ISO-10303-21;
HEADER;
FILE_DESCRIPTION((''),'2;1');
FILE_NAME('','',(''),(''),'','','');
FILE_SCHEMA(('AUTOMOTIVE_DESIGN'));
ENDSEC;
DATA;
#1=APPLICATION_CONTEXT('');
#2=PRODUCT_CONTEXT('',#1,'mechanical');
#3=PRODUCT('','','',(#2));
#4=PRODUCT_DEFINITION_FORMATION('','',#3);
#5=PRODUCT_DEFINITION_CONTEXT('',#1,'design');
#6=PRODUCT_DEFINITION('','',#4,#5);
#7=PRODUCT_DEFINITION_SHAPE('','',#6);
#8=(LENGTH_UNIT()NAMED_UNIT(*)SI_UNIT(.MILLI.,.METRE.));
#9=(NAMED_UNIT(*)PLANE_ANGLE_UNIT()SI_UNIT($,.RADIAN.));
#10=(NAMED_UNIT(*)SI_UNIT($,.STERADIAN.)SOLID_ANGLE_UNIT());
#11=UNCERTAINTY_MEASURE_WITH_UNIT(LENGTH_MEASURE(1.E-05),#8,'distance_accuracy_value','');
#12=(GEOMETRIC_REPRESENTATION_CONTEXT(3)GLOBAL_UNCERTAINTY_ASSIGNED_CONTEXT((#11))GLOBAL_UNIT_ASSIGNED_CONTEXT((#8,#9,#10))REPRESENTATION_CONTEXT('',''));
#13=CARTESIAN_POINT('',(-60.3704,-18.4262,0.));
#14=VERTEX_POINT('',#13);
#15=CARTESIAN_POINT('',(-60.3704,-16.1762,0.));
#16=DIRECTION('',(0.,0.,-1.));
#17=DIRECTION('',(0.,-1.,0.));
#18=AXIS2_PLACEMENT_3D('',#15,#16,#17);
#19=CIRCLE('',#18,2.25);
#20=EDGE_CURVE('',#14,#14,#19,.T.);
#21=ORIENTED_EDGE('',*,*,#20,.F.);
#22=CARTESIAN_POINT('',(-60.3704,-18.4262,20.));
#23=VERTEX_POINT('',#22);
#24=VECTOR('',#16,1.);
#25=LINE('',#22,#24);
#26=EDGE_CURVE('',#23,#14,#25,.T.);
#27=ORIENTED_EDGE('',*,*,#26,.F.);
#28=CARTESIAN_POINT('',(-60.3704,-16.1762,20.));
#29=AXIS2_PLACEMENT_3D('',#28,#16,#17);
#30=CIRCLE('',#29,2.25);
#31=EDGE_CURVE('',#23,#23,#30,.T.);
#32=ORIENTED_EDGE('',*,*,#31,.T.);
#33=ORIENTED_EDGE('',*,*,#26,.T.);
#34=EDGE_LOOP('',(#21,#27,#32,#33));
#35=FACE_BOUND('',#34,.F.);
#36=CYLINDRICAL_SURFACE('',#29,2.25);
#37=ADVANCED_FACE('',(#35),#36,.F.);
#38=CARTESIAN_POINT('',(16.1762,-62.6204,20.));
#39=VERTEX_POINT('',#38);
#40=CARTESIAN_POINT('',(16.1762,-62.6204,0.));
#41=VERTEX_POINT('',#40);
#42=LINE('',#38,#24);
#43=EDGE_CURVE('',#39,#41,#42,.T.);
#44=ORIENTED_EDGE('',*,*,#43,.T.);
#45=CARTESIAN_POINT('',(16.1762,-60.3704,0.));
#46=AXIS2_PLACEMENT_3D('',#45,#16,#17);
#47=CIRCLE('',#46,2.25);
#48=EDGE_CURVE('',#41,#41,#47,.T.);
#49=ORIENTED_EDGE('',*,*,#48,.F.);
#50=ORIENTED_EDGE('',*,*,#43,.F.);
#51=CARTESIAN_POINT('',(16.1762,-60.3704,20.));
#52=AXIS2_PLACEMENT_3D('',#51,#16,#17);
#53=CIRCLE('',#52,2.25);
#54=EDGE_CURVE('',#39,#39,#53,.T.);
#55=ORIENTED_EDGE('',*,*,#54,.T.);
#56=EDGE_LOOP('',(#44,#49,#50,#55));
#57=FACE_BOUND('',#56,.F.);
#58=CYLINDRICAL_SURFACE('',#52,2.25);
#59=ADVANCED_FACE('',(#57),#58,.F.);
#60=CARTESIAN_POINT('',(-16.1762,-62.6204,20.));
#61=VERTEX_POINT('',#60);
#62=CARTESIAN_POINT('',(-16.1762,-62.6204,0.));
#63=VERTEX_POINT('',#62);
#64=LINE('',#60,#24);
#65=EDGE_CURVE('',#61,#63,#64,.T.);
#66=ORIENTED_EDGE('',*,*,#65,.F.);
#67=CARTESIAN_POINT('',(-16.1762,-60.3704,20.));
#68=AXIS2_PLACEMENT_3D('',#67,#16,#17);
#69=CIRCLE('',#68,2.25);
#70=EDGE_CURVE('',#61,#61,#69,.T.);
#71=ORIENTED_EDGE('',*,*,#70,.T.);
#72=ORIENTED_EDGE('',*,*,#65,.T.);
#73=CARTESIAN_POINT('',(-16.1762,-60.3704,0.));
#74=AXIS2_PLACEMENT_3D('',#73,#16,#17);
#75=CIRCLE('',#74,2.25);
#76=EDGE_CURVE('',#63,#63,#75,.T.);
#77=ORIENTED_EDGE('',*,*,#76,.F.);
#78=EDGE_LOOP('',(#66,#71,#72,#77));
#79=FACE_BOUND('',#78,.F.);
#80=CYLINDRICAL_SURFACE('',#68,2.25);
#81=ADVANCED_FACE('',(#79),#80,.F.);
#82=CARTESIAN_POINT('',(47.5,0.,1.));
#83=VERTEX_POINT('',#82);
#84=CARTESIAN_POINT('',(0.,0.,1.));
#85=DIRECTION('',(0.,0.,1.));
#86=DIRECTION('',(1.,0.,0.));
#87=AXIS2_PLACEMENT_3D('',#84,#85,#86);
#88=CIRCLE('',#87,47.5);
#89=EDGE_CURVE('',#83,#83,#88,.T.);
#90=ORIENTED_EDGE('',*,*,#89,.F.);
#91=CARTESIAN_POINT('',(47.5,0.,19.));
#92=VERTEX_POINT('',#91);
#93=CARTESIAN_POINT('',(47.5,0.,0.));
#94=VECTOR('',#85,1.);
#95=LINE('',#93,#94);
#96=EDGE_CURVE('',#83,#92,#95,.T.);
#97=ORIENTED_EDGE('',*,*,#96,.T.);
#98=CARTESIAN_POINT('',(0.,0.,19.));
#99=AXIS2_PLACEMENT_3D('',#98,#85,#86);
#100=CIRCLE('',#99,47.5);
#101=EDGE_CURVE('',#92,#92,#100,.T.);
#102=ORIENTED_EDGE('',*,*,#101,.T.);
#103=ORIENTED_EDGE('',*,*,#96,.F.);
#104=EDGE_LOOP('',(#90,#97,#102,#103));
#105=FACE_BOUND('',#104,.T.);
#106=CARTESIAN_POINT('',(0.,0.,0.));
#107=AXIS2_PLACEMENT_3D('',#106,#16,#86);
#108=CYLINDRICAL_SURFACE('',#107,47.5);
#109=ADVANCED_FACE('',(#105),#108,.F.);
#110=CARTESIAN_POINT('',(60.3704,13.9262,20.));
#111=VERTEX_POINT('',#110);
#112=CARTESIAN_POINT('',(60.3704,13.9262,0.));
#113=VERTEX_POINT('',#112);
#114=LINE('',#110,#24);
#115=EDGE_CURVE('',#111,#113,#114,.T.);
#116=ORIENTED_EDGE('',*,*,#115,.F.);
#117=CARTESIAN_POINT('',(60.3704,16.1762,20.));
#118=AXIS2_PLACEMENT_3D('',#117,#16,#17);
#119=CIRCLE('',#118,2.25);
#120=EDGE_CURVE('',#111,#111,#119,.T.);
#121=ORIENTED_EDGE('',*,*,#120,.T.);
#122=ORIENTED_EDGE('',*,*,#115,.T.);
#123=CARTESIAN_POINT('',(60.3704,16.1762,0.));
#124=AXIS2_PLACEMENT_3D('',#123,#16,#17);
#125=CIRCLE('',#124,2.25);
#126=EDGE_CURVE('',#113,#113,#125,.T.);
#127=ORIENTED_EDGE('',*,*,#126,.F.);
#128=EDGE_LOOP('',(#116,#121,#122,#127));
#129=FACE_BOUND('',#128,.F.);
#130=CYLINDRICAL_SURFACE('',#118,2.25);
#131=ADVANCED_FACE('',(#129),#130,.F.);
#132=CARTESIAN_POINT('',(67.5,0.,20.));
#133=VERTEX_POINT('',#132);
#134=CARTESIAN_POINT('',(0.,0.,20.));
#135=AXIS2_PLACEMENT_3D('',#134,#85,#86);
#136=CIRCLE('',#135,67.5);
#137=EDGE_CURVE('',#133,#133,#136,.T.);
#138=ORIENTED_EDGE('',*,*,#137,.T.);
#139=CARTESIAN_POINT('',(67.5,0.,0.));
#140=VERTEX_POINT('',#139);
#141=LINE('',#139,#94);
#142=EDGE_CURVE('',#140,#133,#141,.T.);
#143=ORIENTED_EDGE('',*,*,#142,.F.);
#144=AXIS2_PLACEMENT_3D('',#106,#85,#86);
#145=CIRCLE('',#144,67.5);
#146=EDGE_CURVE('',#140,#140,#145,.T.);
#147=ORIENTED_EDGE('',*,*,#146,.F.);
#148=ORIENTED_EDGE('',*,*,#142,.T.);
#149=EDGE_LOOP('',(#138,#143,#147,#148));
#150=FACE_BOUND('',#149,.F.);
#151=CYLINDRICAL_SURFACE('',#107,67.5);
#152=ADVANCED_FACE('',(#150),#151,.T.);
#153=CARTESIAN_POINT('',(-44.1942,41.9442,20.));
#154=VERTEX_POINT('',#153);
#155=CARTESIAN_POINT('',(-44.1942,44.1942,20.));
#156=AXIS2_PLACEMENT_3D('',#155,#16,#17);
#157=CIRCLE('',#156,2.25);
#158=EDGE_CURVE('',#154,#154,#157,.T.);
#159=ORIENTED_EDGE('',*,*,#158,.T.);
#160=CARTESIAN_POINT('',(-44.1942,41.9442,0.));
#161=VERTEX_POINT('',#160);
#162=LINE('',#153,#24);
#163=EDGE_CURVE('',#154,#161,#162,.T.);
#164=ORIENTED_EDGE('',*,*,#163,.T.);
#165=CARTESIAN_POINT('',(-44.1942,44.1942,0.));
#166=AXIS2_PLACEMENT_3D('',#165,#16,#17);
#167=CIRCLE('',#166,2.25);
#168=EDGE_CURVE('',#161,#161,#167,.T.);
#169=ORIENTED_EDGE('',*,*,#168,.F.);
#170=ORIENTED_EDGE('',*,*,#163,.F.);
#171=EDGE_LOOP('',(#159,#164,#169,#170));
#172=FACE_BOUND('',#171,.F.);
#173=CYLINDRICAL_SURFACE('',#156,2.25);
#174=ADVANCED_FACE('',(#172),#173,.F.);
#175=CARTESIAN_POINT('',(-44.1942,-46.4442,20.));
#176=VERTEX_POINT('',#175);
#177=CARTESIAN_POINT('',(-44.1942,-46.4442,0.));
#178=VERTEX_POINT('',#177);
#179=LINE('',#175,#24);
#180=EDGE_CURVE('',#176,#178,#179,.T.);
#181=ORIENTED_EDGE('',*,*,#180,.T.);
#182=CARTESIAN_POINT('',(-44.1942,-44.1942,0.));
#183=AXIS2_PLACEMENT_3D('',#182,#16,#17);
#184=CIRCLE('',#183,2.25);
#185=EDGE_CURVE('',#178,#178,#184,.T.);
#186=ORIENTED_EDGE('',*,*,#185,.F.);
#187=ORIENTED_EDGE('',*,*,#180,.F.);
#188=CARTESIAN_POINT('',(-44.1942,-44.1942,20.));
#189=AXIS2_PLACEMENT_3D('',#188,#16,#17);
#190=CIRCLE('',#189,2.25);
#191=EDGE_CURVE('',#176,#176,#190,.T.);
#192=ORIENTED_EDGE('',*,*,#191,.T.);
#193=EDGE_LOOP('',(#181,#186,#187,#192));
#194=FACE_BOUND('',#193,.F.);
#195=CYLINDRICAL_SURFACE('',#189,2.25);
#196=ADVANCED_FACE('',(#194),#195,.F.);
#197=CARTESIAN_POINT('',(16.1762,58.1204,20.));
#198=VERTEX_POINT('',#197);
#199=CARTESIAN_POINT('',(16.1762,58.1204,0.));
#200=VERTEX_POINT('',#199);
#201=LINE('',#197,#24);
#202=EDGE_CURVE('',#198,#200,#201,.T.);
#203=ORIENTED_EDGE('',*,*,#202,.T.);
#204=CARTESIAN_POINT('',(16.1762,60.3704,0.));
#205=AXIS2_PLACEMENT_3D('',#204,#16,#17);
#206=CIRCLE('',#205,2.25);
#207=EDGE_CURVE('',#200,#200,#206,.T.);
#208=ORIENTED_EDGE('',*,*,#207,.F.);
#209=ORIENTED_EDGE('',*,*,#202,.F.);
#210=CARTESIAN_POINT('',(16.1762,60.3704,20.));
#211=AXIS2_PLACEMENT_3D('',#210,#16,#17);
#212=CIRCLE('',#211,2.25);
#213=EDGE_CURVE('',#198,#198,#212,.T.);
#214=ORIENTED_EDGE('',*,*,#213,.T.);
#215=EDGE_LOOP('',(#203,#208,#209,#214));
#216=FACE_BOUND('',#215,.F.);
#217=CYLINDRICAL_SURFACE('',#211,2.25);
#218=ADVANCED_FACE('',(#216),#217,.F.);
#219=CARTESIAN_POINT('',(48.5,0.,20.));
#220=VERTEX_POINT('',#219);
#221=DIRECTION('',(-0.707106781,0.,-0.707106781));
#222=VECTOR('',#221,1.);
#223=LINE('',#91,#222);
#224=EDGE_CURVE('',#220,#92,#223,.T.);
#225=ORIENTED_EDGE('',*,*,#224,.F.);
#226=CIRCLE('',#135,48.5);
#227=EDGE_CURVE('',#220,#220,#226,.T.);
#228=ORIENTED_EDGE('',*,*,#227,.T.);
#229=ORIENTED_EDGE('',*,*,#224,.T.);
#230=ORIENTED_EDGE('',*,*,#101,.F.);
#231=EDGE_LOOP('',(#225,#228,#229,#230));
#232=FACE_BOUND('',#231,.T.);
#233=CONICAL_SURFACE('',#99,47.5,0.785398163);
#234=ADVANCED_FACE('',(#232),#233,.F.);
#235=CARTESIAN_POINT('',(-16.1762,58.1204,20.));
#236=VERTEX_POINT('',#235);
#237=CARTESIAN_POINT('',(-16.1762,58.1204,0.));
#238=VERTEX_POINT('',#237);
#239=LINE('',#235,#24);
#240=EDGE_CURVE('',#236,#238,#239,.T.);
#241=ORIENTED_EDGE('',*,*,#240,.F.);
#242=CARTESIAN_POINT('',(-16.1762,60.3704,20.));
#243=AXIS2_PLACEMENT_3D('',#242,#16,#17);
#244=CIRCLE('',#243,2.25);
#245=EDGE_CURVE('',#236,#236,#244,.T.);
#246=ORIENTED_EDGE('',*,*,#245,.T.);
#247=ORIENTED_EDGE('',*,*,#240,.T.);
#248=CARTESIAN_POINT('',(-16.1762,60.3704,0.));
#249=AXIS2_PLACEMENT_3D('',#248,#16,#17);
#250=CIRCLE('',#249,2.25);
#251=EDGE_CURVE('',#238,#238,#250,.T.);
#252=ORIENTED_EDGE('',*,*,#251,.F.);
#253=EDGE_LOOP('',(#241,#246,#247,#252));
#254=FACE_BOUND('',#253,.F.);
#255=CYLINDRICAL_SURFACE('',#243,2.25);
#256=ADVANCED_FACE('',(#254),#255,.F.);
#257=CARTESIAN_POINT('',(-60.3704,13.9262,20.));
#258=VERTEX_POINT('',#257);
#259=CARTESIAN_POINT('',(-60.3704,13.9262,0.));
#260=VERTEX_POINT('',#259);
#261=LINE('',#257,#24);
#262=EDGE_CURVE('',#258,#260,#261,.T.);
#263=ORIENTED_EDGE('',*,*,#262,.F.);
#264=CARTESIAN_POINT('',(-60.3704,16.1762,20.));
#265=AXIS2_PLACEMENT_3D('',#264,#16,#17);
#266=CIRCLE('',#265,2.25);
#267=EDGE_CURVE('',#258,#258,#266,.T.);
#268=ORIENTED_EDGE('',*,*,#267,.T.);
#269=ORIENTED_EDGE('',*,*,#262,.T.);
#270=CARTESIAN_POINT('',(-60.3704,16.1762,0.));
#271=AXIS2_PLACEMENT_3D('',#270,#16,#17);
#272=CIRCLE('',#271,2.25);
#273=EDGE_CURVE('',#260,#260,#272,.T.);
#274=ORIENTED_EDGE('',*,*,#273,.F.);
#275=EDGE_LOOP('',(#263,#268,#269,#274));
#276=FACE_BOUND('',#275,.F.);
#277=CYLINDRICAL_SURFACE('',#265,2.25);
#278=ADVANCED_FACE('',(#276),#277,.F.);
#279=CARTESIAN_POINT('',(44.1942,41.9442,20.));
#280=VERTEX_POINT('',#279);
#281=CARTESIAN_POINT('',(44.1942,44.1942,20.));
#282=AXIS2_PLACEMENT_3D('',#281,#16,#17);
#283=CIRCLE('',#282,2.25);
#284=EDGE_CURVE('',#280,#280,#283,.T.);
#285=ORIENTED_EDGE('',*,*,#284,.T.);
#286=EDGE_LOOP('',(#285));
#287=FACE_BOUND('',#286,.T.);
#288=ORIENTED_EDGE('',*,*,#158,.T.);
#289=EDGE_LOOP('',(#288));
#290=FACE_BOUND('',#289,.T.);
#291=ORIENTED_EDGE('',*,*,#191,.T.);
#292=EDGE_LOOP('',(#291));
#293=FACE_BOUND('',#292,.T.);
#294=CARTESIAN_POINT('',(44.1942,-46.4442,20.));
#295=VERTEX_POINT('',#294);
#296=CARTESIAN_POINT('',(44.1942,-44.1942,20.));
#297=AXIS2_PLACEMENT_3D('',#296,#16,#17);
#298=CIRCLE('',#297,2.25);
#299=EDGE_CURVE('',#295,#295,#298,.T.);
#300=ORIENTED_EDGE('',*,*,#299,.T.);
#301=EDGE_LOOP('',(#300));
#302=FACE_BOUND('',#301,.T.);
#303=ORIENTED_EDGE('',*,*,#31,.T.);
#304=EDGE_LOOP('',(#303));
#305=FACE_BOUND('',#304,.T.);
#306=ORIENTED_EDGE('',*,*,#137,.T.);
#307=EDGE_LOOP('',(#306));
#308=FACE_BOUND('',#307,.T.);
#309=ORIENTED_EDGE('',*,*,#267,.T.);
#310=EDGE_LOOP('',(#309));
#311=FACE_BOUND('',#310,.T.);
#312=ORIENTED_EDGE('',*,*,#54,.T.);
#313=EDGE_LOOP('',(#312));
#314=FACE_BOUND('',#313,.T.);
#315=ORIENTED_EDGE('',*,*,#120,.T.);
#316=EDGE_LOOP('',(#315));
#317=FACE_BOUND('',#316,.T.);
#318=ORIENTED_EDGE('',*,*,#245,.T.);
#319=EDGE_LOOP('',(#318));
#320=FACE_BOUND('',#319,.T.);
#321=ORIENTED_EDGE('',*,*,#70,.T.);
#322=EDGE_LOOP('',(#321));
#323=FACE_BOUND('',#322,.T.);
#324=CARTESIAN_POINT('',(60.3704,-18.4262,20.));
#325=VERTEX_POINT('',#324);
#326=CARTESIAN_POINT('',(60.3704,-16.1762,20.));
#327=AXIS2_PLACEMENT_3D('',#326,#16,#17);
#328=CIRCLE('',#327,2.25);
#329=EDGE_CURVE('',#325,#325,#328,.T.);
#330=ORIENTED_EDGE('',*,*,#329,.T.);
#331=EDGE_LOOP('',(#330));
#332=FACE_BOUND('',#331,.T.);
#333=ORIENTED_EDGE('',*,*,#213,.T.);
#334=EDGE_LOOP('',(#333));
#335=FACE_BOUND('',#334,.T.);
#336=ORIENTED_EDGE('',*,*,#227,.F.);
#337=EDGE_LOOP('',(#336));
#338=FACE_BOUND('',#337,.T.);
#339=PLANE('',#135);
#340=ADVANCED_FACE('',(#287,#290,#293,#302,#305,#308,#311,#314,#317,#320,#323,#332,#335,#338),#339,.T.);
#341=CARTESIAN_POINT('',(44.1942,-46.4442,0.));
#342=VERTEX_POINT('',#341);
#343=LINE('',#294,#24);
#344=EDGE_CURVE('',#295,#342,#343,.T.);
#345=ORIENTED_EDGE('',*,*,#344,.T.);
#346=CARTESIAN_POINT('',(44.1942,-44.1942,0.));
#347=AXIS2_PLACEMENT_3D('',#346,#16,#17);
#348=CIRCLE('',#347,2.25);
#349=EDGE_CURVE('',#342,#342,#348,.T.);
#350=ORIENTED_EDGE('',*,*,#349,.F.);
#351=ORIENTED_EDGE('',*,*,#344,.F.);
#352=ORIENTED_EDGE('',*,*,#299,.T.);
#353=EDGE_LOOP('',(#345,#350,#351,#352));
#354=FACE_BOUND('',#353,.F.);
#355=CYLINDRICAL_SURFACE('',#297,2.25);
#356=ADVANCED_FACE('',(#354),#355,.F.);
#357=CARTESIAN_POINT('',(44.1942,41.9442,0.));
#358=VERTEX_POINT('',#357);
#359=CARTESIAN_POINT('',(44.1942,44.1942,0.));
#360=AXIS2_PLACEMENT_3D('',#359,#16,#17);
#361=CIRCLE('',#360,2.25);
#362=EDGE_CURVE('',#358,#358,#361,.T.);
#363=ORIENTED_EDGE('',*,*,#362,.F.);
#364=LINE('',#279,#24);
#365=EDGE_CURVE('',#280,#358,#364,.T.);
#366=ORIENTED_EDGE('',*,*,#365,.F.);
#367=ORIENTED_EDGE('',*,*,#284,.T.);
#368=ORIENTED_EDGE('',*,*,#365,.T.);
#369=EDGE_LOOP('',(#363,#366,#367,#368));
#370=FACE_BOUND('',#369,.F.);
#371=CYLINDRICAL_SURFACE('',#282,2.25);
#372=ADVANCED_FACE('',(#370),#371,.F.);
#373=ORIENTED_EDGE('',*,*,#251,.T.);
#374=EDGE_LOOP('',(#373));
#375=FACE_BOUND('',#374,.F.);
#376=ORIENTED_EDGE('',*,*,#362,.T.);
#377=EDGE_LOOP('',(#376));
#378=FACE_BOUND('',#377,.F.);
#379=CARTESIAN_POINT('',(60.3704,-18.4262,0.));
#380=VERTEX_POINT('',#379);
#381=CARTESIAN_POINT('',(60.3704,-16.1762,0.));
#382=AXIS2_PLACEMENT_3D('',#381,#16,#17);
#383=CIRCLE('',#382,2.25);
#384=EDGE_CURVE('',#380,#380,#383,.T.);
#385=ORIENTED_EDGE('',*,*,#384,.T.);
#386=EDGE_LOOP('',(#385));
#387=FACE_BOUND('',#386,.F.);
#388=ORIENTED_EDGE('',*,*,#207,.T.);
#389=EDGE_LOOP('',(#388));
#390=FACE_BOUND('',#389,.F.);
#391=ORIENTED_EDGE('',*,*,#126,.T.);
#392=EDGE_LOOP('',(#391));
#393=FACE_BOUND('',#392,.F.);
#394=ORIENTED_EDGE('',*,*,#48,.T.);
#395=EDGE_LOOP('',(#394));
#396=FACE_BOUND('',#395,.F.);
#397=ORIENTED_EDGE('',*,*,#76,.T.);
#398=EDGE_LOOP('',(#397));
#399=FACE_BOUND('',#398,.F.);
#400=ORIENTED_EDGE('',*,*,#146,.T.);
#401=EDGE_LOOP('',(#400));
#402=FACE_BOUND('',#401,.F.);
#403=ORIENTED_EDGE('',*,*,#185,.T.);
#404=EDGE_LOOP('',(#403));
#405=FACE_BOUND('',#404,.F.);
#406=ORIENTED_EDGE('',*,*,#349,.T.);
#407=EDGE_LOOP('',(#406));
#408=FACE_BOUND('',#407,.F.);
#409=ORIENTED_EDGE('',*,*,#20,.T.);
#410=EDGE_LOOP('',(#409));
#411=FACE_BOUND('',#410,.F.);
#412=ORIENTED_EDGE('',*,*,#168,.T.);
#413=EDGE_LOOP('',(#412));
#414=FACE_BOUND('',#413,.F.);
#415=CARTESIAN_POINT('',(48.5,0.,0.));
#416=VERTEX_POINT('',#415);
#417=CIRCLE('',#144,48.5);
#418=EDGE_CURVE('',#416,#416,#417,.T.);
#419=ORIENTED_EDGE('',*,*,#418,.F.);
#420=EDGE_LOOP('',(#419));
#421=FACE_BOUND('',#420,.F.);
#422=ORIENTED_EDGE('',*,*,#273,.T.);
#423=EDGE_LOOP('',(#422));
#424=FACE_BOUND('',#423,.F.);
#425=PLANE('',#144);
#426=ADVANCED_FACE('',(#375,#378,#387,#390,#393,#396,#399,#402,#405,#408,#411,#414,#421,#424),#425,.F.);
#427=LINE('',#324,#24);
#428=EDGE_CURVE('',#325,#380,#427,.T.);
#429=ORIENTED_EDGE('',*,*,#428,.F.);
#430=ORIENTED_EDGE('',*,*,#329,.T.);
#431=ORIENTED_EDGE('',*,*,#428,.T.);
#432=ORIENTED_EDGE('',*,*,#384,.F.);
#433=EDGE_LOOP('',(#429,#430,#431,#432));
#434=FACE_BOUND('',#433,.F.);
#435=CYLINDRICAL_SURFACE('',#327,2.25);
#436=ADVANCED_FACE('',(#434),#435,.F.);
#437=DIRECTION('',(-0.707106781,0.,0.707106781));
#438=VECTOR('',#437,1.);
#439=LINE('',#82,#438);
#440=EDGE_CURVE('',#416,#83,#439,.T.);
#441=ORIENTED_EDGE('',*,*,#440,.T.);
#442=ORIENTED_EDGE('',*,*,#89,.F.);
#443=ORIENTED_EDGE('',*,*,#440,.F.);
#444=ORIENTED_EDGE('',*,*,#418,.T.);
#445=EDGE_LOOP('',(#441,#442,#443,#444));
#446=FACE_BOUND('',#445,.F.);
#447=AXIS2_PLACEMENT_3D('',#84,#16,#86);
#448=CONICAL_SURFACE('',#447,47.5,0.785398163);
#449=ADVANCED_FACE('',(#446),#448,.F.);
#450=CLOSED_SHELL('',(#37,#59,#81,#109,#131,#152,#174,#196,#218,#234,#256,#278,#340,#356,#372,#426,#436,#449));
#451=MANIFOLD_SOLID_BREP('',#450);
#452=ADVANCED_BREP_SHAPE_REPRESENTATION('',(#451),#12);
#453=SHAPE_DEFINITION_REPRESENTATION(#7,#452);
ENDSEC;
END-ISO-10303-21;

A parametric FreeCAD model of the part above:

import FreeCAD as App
import Part
import Sketcher

V = App.Vector
Q = App.Units.Quantity


def edges_at(feature, points):
    """Names of the edges that pass closest to the given points."""
    edges = feature.Shape.Edges
    near = lambda p: min(range(len(edges)), key=lambda i: edges[i].distToShape(Part.Vertex(*p))[0])
    return sorted({f"Edge{near(p) + 1}" for p in points})

doc = App.newDocument("Part")
params = doc.addObject("Spreadsheet::Sheet", "Params")
for row, (alias, value) in enumerate([
    ("sketch1_diameter", "135 mm"),
    ("sketch1_diameter2", "95 mm"),
    ("pad1_length", "20 mm"),
    ("sketch2_diameter", "4.5 mm"),
    ("hole_diameter", "4.5 mm"),
    ("chamfer_size", "1 mm"),
], start=1):
    params.set(f"A{row}", alias)
    params.set(f"B{row}", "=" + value)
    params.setAlias(f"B{row}", alias)

body = doc.addObject("PartDesign::Body", "Body")

sketch1 = body.newObject("Sketcher::SketchObject", "Sketch")
sketch1.AttachmentSupport = (doc.getObject("XY_Plane"), [""])
sketch1.MapMode = "FlatFace"
sketch1.addGeometry([
    Part.Circle(V(0, 0, 0), V(0, 0, 1), 68),
    Part.Circle(V(0, 0, 0), V(0, 0, 1), 48),
], False)
sketch1.addConstraint([
    Sketcher.Constraint("Coincident", 0, 3, -1, 1),
    Sketcher.Constraint("Coincident", 1, 3, -1, 1),
    Sketcher.Constraint("Diameter", 0, Q("135 mm")),
    Sketcher.Constraint("Diameter", 1, Q("95 mm")),
])
sketch1.setExpression("Constraints[2]", "Params.sketch1_diameter")
sketch1.setExpression("Constraints[3]", "Params.sketch1_diameter2")
pad1 = body.newObject("PartDesign::Pad", "Pad")
pad1.Profile = sketch1
pad1.setExpression("Length", "Params.pad1_length")

sketch2 = body.newObject("Sketcher::SketchObject", "Sketch001")
sketch2.AttachmentSupport = (doc.getObject("XY_Plane"), [""])
sketch2.MapMode = "FlatFace"
sketch2.AttachmentOffset = App.Placement(V(0, 0, 20), App.Rotation())
sketch2.addGeometry([
    Part.Circle(V(16.2, 60.4, 0), V(0, 0, 1), 2.2),
    Part.Circle(V(-16.2, 60.4, 0), V(0, 0, 1), 2.2),
    Part.Circle(V(-44.2, 44.2, 0), V(0, 0, 1), 2.2),
    Part.Circle(V(-60.4, 16.2, 0), V(0, 0, 1), 2.2),
    Part.Circle(V(-60.4, -16.2, 0), V(0, 0, 1), 2.2),
    Part.Circle(V(-44.2, -44.2, 0), V(0, 0, 1), 2.2),
    Part.Circle(V(-16.2, -60.4, 0), V(0, 0, 1), 2.2),
    Part.Circle(V(16.2, -60.4, 0), V(0, 0, 1), 2.2),
    Part.Circle(V(44.2, -44.2, 0), V(0, 0, 1), 2.2),
    Part.Circle(V(60.4, -16.2, 0), V(0, 0, 1), 2.2),
    Part.Circle(V(60.4, 16.2, 0), V(0, 0, 1), 2.2),
    Part.Circle(V(44.2, 44.2, 0), V(0, 0, 1), 2.2),
], False)
sketch2.addConstraint([
    Sketcher.Constraint("Equal", 0, 1),
    Sketcher.Constraint("Equal", 1, 2),
    Sketcher.Constraint("Equal", 2, 3),
    Sketcher.Constraint("Equal", 3, 4),
    Sketcher.Constraint("Equal", 4, 5),
    Sketcher.Constraint("Equal", 5, 6),
    Sketcher.Constraint("Equal", 6, 7),
    Sketcher.Constraint("Equal", 7, 8),
    Sketcher.Constraint("Equal", 8, 9),
    Sketcher.Constraint("Equal", 9, 10),
    Sketcher.Constraint("Equal", 10, 11),
    Sketcher.Constraint("Symmetric", 0, 3, 6, 3, -1, 1),
    Sketcher.Constraint("Symmetric", 1, 3, 7, 3, -1, 1),
    Sketcher.Constraint("Symmetric", 2, 3, 8, 3, -1, 1),
    Sketcher.Constraint("Symmetric", 3, 3, 9, 3, -1, 1),
    Sketcher.Constraint("Symmetric", 4, 3, 10, 3, -1, 1),
    Sketcher.Constraint("Symmetric", 5, 3, 11, 3, -1, 1),
    Sketcher.Constraint("Symmetric", 0, 3, 1, 3, -2),
    Sketcher.Constraint("Symmetric", 5, 3, 8, 3, -2),
    Sketcher.Constraint("Symmetric", 4, 3, 9, 3, -2),
    Sketcher.Constraint("Diameter", 0, Q("4.5 mm")),
    Sketcher.Constraint("DistanceX", 2, 3, 1, 3, Q("28.018 mm")),
    Sketcher.Constraint("DistanceY", 3, 3, 2, 3, Q("28.018 mm")),
    Sketcher.Constraint("DistanceX", -1, 1, 0, 3, Q("16.1762 mm")),
    Sketcher.Constraint("DistanceY", -1, 1, 0, 3, Q("60.3704 mm")),
    Sketcher.Constraint("DistanceY", -1, 1, 2, 3, Q("44.1942 mm")),
    Sketcher.Constraint("DistanceX", 3, 3, -1, 1, Q("60.3704 mm")),
])
sketch2.setExpression("Constraints[20]", "Params.sketch2_diameter")
doc.recompute()
hole = body.newObject("PartDesign::Hole", "Hole")
hole.Profile = sketch2
hole.ThreadType = "None"
hole.setExpression("Diameter", "Params.hole_diameter")
hole.DepthType = "ThroughAll"
doc.recompute()

chamfer = body.newObject("PartDesign::Chamfer", "Chamfer")
chamfer.Base = (hole, edges_at(hole, [(-47.5, 0, 20), (-47.5, 0, 0)]))
chamfer.setExpression("Size", "Params.chamfer_size")

doc.recompute()
